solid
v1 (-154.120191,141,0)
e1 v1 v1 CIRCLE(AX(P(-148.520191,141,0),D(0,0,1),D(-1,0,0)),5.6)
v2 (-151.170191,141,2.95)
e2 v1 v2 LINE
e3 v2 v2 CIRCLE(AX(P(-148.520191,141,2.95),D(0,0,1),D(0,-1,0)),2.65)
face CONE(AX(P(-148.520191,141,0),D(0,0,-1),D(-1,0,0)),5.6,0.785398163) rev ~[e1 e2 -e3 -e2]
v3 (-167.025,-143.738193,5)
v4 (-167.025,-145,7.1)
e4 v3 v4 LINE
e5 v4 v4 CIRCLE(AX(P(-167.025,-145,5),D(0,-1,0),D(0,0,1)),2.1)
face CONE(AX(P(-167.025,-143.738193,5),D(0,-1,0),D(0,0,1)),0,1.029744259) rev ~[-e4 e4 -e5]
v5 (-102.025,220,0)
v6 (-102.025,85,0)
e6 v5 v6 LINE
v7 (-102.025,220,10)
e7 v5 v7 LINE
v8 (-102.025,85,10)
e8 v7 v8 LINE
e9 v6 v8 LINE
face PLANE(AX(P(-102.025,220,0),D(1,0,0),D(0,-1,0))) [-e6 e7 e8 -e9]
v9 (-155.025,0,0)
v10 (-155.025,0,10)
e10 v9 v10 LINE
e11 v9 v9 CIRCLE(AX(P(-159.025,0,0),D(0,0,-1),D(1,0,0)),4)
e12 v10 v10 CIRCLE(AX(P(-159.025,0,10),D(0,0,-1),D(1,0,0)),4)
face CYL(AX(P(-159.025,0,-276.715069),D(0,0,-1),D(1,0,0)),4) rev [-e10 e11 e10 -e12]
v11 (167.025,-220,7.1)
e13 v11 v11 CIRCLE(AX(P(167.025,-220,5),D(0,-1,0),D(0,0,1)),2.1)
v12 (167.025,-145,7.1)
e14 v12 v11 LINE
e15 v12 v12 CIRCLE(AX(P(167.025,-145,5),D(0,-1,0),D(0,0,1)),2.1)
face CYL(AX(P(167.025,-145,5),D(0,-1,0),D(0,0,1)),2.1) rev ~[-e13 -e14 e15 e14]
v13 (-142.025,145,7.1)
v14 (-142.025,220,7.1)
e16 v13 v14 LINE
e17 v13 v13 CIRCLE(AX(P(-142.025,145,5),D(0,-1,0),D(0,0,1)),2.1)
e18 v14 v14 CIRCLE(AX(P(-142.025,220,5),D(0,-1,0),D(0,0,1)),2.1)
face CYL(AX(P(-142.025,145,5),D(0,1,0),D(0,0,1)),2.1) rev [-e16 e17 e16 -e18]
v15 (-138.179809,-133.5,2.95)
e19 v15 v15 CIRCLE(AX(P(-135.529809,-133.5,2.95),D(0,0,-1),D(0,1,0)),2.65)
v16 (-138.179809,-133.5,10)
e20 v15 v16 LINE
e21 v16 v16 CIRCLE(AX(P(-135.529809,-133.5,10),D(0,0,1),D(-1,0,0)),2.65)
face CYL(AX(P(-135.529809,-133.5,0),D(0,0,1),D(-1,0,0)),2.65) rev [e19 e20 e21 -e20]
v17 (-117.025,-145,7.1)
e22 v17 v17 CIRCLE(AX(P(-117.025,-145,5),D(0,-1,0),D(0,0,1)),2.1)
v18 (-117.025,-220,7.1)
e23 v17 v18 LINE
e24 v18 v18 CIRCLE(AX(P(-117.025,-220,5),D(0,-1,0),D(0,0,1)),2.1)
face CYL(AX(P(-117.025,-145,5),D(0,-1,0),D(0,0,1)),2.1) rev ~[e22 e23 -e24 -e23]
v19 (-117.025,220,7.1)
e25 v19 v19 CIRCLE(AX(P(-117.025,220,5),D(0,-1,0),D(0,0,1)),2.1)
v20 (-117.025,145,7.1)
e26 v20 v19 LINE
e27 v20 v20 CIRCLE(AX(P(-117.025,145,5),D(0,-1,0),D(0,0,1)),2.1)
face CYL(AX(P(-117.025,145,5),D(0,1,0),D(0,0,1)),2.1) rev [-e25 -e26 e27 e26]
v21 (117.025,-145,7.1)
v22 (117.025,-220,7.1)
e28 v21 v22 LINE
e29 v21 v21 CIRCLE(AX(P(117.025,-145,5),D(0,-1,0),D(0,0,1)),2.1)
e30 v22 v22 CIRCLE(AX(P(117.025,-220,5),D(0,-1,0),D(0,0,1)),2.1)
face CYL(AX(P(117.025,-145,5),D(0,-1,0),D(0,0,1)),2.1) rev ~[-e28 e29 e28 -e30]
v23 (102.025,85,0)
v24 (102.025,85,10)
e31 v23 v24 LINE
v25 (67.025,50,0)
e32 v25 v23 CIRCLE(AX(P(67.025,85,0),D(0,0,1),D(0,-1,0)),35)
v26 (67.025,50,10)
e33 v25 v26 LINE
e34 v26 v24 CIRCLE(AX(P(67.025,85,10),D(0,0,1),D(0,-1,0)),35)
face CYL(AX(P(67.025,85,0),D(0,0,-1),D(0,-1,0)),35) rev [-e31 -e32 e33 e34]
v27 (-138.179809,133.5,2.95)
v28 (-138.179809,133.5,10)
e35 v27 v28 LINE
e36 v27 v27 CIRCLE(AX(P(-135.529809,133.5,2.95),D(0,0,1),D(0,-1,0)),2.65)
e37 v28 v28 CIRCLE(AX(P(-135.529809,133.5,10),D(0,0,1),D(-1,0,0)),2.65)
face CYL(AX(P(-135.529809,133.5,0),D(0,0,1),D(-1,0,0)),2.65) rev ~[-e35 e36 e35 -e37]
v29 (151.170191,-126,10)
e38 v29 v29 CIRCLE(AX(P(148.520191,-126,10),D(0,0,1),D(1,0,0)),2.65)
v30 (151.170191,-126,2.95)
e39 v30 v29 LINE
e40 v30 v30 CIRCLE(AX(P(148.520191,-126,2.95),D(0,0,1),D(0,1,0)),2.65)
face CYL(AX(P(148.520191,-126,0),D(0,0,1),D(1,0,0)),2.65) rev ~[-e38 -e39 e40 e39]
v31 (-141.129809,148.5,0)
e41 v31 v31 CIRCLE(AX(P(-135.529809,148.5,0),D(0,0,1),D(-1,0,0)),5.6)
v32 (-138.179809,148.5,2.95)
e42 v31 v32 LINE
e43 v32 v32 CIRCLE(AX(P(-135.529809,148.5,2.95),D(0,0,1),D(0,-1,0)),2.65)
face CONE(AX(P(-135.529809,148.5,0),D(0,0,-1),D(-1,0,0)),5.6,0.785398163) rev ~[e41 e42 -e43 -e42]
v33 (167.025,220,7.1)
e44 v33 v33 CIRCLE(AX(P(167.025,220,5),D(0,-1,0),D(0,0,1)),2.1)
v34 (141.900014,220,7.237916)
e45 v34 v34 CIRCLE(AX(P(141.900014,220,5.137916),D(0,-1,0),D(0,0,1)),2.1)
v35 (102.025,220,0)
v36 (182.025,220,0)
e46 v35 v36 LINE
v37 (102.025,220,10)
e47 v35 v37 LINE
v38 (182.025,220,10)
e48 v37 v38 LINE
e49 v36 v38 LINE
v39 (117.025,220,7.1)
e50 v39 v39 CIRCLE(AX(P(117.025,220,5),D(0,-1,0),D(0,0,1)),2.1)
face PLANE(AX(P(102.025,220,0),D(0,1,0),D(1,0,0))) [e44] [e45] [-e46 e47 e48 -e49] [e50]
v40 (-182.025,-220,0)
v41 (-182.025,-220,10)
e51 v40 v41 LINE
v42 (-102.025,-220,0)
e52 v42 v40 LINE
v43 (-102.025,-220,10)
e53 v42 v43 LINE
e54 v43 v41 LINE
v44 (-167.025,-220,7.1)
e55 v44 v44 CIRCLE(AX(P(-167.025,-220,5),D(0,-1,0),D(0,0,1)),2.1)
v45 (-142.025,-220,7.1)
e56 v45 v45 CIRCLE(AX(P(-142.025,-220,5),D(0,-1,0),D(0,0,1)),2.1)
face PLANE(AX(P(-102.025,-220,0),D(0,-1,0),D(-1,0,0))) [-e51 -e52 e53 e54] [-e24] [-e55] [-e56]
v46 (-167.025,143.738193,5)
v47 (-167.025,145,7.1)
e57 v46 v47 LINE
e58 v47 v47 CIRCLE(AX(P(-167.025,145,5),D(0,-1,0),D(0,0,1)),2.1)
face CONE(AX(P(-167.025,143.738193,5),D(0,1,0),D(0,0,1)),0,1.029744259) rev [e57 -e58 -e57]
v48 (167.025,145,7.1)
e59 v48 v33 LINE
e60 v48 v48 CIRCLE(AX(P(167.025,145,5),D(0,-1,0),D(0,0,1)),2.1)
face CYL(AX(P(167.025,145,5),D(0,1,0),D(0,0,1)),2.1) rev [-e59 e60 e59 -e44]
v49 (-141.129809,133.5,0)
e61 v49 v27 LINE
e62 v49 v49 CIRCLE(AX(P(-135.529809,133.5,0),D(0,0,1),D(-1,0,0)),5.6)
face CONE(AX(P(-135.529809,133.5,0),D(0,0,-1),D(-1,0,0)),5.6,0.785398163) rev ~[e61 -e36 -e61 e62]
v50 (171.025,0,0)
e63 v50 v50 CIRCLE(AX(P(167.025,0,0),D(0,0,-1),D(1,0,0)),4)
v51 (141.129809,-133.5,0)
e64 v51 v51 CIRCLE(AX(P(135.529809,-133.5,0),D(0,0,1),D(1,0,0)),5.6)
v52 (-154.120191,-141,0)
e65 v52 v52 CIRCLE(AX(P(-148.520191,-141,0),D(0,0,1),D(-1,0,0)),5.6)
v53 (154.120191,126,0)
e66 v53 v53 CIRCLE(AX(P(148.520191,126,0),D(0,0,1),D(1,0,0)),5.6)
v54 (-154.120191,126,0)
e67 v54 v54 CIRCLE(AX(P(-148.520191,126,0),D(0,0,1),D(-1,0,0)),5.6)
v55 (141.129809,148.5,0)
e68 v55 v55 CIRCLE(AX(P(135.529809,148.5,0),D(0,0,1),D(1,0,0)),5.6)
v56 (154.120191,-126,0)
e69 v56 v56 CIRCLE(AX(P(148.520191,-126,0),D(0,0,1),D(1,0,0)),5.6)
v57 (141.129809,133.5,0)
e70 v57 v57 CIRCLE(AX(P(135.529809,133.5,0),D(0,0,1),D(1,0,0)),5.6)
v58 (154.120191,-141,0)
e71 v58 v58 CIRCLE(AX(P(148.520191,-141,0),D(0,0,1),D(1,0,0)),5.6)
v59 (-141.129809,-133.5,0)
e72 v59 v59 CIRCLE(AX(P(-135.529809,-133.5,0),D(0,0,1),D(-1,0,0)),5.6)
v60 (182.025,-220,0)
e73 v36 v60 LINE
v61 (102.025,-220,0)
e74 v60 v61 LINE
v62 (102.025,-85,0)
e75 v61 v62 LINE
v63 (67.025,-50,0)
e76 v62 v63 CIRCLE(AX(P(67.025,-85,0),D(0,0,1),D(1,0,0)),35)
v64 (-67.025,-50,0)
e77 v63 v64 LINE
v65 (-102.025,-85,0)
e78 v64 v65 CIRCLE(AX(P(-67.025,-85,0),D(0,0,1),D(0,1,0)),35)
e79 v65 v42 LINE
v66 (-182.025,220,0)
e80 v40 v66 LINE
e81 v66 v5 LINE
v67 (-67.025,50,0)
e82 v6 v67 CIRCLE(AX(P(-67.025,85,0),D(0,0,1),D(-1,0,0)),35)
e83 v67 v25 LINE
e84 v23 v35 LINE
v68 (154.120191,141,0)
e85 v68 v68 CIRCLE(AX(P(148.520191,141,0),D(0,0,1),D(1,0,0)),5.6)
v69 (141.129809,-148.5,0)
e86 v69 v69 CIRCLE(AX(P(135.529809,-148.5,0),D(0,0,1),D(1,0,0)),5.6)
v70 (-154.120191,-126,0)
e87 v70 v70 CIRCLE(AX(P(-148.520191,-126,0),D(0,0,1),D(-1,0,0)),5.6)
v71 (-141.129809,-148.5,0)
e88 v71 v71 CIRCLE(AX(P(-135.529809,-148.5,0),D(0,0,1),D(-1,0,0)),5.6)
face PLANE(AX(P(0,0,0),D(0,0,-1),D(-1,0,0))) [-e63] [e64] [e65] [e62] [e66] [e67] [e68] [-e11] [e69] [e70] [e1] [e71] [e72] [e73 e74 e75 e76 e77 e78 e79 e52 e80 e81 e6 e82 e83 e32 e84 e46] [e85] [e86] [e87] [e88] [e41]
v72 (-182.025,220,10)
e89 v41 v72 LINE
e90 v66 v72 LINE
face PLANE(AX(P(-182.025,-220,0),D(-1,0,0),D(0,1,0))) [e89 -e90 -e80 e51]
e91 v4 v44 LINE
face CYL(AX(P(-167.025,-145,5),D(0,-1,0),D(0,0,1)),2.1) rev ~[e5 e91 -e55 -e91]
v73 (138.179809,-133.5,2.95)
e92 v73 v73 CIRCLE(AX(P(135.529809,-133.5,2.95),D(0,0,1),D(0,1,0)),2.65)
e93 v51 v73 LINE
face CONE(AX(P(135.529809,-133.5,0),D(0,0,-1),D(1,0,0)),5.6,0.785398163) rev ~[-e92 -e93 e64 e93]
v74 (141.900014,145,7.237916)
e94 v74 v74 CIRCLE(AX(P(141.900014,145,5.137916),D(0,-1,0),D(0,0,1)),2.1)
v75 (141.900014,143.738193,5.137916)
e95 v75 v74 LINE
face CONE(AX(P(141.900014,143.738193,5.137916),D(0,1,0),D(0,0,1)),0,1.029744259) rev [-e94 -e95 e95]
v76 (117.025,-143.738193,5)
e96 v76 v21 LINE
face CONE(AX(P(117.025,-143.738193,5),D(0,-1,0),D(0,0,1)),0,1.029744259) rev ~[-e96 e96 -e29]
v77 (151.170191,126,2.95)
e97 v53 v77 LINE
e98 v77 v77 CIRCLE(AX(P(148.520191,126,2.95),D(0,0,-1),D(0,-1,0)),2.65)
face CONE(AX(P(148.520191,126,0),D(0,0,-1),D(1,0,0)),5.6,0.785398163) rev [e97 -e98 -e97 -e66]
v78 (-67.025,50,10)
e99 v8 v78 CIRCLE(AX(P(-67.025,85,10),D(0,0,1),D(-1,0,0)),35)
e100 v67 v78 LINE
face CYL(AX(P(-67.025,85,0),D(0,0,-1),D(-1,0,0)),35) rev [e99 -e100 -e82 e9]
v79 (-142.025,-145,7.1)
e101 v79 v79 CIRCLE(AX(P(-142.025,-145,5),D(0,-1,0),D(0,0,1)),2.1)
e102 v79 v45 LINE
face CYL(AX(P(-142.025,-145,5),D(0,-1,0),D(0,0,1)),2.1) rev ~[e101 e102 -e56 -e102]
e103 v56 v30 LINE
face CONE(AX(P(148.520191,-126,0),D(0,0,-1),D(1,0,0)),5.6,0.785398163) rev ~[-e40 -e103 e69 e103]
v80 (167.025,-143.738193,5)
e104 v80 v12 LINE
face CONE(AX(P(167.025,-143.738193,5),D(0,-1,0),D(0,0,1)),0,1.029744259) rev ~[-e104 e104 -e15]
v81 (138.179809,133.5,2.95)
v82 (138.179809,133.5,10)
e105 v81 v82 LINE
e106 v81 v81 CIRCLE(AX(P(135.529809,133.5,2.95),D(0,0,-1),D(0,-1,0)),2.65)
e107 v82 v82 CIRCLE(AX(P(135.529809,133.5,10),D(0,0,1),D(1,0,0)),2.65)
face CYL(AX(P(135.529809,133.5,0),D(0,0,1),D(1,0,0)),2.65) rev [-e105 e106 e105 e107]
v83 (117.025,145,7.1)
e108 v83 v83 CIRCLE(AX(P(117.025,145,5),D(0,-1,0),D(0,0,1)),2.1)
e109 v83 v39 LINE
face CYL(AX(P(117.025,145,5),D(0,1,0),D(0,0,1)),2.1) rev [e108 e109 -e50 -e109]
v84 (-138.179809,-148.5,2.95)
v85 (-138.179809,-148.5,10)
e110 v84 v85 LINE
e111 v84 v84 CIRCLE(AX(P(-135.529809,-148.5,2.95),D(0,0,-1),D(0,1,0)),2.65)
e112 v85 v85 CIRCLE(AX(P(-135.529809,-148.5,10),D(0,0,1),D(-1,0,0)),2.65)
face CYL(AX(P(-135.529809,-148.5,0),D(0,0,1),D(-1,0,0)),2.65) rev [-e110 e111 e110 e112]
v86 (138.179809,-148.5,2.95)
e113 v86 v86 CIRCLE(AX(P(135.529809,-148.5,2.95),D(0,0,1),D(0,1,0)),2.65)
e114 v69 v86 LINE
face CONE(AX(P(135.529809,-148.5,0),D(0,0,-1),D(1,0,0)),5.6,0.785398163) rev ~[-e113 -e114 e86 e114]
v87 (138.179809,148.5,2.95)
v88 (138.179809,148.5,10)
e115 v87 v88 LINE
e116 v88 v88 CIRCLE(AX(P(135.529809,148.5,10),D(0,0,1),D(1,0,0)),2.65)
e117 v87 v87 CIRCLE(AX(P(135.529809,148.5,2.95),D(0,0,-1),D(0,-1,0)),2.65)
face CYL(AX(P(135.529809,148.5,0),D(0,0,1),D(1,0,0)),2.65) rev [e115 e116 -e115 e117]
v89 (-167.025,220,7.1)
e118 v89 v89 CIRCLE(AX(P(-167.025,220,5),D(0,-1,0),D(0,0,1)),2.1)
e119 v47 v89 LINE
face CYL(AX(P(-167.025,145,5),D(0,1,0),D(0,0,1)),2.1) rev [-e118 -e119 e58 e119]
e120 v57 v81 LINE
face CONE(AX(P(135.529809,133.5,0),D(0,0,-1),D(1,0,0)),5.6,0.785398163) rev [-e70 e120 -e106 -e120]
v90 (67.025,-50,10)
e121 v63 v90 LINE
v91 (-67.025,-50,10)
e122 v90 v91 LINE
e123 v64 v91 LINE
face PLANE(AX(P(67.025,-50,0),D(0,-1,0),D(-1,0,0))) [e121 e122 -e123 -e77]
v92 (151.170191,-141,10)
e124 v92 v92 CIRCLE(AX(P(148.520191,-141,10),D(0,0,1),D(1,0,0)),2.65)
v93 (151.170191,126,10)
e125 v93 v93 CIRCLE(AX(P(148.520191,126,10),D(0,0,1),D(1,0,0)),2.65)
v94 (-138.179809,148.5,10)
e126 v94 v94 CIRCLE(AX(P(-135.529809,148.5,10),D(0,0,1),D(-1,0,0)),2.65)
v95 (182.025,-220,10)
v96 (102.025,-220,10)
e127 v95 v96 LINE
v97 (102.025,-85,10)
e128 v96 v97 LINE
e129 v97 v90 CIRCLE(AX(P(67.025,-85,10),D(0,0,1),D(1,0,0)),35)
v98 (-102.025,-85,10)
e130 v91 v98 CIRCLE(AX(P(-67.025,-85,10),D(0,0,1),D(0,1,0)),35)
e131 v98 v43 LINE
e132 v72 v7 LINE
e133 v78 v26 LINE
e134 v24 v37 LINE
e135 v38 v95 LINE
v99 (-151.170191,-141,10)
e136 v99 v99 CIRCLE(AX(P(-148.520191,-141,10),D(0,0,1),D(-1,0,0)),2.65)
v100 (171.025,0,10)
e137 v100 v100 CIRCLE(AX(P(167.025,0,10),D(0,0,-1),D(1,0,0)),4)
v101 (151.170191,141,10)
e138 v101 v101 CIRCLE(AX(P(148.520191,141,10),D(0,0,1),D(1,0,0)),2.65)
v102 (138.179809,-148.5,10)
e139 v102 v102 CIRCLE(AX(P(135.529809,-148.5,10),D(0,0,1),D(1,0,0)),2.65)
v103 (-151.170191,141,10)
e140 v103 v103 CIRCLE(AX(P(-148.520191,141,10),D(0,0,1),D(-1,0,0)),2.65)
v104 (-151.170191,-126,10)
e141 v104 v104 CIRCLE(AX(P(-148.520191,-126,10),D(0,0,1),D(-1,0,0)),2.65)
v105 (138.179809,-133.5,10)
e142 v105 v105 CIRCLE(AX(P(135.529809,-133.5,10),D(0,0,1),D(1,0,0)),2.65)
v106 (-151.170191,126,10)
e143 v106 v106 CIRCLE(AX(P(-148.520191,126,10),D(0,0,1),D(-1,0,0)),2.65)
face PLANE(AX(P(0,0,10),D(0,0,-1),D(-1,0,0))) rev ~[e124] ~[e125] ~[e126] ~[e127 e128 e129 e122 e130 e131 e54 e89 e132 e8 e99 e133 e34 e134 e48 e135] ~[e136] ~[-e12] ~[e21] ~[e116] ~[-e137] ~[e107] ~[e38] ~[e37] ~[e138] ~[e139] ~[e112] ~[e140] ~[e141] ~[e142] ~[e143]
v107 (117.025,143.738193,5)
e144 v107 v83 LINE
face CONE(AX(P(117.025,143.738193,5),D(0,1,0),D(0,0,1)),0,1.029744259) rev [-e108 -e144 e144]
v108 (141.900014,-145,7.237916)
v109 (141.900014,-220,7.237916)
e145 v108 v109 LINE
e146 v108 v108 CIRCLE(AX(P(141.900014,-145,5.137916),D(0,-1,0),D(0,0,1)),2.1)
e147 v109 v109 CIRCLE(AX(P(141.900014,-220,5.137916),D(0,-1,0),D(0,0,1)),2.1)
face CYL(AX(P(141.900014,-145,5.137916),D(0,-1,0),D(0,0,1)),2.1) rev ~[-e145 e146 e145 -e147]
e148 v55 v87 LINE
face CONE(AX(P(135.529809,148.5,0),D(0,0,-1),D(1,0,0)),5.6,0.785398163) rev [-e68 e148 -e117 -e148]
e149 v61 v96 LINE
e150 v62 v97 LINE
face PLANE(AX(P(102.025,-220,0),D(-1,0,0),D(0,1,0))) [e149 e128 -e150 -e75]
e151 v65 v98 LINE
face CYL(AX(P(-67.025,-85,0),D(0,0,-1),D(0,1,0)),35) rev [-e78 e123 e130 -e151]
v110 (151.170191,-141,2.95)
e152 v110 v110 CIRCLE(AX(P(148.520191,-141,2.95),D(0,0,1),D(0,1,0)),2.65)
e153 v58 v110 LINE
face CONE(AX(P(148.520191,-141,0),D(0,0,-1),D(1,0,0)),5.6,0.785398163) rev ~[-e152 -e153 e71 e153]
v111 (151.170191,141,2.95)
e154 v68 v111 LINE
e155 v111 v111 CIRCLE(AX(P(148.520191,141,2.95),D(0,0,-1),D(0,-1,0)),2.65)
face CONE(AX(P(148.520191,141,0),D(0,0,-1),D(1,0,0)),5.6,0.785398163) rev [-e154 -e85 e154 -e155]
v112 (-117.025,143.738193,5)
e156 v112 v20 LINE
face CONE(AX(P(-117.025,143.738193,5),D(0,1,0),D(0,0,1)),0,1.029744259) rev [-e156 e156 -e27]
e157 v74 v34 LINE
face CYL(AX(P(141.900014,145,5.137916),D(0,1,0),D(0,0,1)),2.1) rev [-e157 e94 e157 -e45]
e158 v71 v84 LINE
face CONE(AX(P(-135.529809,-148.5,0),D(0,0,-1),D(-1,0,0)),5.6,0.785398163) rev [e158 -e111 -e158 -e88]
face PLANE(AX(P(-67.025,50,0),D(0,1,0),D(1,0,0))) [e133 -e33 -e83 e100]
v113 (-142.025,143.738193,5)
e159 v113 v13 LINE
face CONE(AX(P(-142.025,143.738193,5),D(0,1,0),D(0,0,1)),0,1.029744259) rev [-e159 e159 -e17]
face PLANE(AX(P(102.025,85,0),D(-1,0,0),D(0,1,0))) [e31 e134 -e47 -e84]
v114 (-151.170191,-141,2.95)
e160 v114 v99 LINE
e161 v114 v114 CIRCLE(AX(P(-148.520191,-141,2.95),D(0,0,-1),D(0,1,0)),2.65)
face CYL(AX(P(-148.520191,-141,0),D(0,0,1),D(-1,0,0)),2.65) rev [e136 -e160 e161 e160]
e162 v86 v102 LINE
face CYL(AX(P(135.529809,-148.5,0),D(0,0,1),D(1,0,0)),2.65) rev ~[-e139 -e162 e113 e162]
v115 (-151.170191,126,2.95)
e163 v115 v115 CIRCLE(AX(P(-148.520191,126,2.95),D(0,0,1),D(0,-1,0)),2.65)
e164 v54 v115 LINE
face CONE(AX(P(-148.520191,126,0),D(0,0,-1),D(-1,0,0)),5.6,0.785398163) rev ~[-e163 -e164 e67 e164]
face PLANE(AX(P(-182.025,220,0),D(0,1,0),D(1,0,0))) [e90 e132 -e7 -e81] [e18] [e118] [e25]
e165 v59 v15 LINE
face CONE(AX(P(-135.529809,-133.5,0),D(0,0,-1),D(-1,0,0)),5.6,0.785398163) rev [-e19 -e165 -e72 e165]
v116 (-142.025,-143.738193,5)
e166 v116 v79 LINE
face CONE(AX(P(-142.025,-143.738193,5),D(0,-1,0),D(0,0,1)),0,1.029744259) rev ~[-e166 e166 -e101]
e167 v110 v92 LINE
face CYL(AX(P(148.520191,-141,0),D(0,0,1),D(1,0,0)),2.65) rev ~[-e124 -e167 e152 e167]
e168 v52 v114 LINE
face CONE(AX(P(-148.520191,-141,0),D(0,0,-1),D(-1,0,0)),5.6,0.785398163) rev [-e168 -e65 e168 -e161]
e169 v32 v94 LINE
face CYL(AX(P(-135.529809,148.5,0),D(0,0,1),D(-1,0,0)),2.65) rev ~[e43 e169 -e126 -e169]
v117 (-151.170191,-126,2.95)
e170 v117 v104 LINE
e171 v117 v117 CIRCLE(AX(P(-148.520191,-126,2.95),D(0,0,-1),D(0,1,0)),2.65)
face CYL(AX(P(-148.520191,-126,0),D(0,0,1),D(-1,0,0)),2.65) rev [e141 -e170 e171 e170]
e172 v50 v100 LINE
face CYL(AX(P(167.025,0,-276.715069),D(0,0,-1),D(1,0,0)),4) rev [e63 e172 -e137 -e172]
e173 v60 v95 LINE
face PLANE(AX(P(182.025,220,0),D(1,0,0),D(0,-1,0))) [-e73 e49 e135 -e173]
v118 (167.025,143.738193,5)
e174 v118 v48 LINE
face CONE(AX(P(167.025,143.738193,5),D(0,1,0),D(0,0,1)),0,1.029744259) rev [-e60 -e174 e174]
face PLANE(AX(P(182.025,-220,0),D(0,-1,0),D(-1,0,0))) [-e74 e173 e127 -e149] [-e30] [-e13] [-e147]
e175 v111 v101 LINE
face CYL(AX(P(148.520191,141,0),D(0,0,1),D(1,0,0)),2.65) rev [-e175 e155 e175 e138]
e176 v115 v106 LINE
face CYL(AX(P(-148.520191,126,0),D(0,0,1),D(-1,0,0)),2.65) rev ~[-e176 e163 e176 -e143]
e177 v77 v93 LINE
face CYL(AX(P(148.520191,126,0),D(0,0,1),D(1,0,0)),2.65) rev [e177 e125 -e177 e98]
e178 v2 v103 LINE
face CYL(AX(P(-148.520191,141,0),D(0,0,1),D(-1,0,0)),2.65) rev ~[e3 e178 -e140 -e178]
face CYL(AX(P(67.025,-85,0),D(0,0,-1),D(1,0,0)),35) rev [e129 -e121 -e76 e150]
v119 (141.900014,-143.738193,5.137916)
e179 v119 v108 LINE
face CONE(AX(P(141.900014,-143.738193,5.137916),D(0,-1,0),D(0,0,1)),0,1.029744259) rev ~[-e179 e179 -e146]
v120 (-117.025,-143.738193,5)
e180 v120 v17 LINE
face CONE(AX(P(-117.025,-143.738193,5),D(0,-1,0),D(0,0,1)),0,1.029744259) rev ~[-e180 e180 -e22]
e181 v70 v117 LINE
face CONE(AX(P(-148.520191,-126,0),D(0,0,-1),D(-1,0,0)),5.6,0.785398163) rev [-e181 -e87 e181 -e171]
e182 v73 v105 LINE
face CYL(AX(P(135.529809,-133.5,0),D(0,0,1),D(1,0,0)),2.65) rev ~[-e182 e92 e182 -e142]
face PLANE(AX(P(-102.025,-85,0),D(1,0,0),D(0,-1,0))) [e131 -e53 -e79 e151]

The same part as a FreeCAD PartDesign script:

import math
import FreeCAD as App
import Part
import Sketcher
from FreeCAD import Vector
Q = App.Units.Quantity


def add_polygon(sketch, points):
    """Adds a closed chain of lines whose ends are joined by coincident constraints."""
    first, n = sketch.GeometryCount, len(points)
    for a, b in zip(points, points[1:] + points[:1]):
        sketch.addGeometry(Part.LineSegment(App.Vector(*a, 0), App.Vector(*b, 0)), False)
    for i in range(n):
        sketch.addConstraint(Sketcher.Constraint("Coincident", first + i, 2, first + (i + 1) % n, 1))

doc = App.newDocument("Part")
body = doc.addObject("PartDesign::Body", "Body")

# Sketch on XY plane
sketch1 = body.newObject("Sketcher::SketchObject", "Sketch")
sketch1.AttachmentSupport = (doc.getObject("XY_Plane"), [""])
sketch1.MapMode = "FlatFace"
sketch1.addGeometry(Part.LineSegment(Vector(67, 50, 0), Vector(-67, 50, 0)), False)
sketch1.addGeometry(Part.ArcOfCircle(Part.Circle(Vector(-67, 85, 0), Vector(0, 0, 1), 35), math.radians(180), math.radians(270)), False)
sketch1.addGeometry(Part.LineSegment(Vector(-102, 85, 0), Vector(-102, 220, 0)), False)
sketch1.addGeometry(Part.LineSegment(Vector(-102, 220, 0), Vector(-182, 220, 0)), False)
sketch1.addGeometry(Part.LineSegment(Vector(-182, 220, 0), Vector(-182, -220, 0)), False)
sketch1.addGeometry(Part.LineSegment(Vector(-182, -220, 0), Vector(-102, -220, 0)), False)
sketch1.addGeometry(Part.LineSegment(Vector(-102, -220, 0), Vector(-102, -85, 0)), False)
sketch1.addGeometry(Part.ArcOfCircle(Part.Circle(Vector(-67, -85, 0), Vector(0, 0, 1), 35), math.radians(90), math.radians(180)), False)
sketch1.addGeometry(Part.LineSegment(Vector(-67, -50, 0), Vector(67, -50, 0)), False)
sketch1.addGeometry(Part.ArcOfCircle(Part.Circle(Vector(67, -85, 0), Vector(0, 0, 1), 35), math.radians(0), math.radians(90)), False)
sketch1.addGeometry(Part.LineSegment(Vector(102, -85, 0), Vector(102, -220, 0)), False)
sketch1.addGeometry(Part.LineSegment(Vector(102, -220, 0), Vector(182, -220, 0)), False)
sketch1.addGeometry(Part.LineSegment(Vector(182, -220, 0), Vector(182, 220, 0)), False)
sketch1.addGeometry(Part.LineSegment(Vector(182, 220, 0), Vector(102, 220, 0)), False)
sketch1.addGeometry(Part.LineSegment(Vector(102, 220, 0), Vector(102, 85, 0)), False)
sketch1.addGeometry(Part.ArcOfCircle(Part.Circle(Vector(67, 85, 0), Vector(0, 0, 1), 35), math.radians(-90), math.radians(0)), False)
sketch1.addConstraint(Sketcher.Constraint("Tangent", 0, 2, 1, 2))
sketch1.addConstraint(Sketcher.Constraint("Tangent", 1, 1, 2, 1))
sketch1.addConstraint(Sketcher.Constraint("Coincident", 2, 2, 3, 1))
sketch1.addConstraint(Sketcher.Constraint("Coincident", 3, 2, 4, 1))
sketch1.addConstraint(Sketcher.Constraint("Coincident", 4, 2, 5, 1))
sketch1.addConstraint(Sketcher.Constraint("Coincident", 5, 2, 6, 1))
sketch1.addConstraint(Sketcher.Constraint("Tangent", 6, 2, 7, 2))
sketch1.addConstraint(Sketcher.Constraint("Tangent", 7, 1, 8, 1))
sketch1.addConstraint(Sketcher.Constraint("Tangent", 8, 2, 9, 2))
sketch1.addConstraint(Sketcher.Constraint("Tangent", 9, 1, 10, 1))
sketch1.addConstraint(Sketcher.Constraint("Coincident", 10, 2, 11, 1))
sketch1.addConstraint(Sketcher.Constraint("Coincident", 11, 2, 12, 1))
sketch1.addConstraint(Sketcher.Constraint("Coincident", 12, 2, 13, 1))
sketch1.addConstraint(Sketcher.Constraint("Coincident", 13, 2, 14, 1))
sketch1.addConstraint(Sketcher.Constraint("Tangent", 14, 2, 15, 2))
sketch1.addConstraint(Sketcher.Constraint("Tangent", 15, 1, 0, 1))
sketch1.addConstraint(Sketcher.Constraint("Horizontal", 0))
sketch1.addConstraint(Sketcher.Constraint("Vertical", 2))
sketch1.addConstraint(Sketcher.Constraint("Horizontal", 3))
sketch1.addConstraint(Sketcher.Constraint("Vertical", 4))
sketch1.addConstraint(Sketcher.Constraint("Horizontal", 5))
sketch1.addConstraint(Sketcher.Constraint("Vertical", 6))
sketch1.addConstraint(Sketcher.Constraint("Horizontal", 8))
sketch1.addConstraint(Sketcher.Constraint("Vertical", 10))
sketch1.addConstraint(Sketcher.Constraint("Horizontal", 11))
sketch1.addConstraint(Sketcher.Constraint("Vertical", 12))
sketch1.addConstraint(Sketcher.Constraint("Horizontal", 13))
sketch1.addConstraint(Sketcher.Constraint("Vertical", 14))
sketch1.addConstraint(Sketcher.Constraint("Equal", 1, 7))
sketch1.addConstraint(Sketcher.Constraint("Equal", 7, 9))
sketch1.addConstraint(Sketcher.Constraint("Equal", 9, 15))
sketch1.addConstraint(Sketcher.Constraint("Symmetric", 1, 3, 9, 3, -1, 1))
sketch1.addConstraint(Sketcher.Constraint("Symmetric", 3, 2, 11, 2, -1, 1))
sketch1.addConstraint(Sketcher.Constraint("Symmetric", 5, 2, 13, 2, -1, 1))
sketch1.addConstraint(Sketcher.Constraint("Symmetric", 5, 2, 10, 2, -2))
sketch1.addConstraint(Sketcher.Constraint("Radius", 1, 35.0))
sketch1.addConstraint(Sketcher.Constraint("DistanceX", 3, 2, 3, 1, 80.0))
sketch1.addConstraint(Sketcher.Constraint("DistanceY", 2, 1, 2, 2, 135.0))
sketch1.addConstraint(Sketcher.Constraint("DistanceY", 4, 2, 4, 1, 440.0))
sketch1.addConstraint(Sketcher.Constraint("DistanceX", 0, 2, 0, 1, 134.05))
pad1 = body.newObject("PartDesign::Pad", "Pad")
pad1.Profile = sketch1
pad1.Length = 10

# Sketch on YZ plane
sketch2 = body.newObject("Sketcher::SketchObject", "Sketch001")
sketch2.AttachmentSupport = (doc.getObject("YZ_Plane"), [""])
sketch2.MapMode = "FlatFace"
sketch2.AttachmentOffset = App.Placement(Vector(0, 0, -167.025), App.Rotation())
add_polygon(sketch2, [(143.7, 5), (220, 5), (220, 7.1), (145, 7.1)])  # lines 0-3
sketch2.addGeometry(Part.LineSegment(Vector(220, 5, 0), Vector(143.7, 5, 0)), True)  # axis
sketch2.addConstraint(Sketcher.Constraint("Horizontal", 0))
sketch2.addConstraint(Sketcher.Constraint("Vertical", 1))
sketch2.addConstraint(Sketcher.Constraint("Horizontal", 2))
sketch2.addConstraint(Sketcher.Constraint("Horizontal", 4))
sketch2.addConstraint(Sketcher.Constraint("Coincident", 4, 1, 0, 2))
sketch2.addConstraint(Sketcher.Constraint("Equal", 0, 4))
sketch2.addConstraint(Sketcher.Constraint("DistanceX", 2, 2, 2, 1, 75.0))
sketch2.addConstraint(Sketcher.Constraint("Angle", 3, Q("-121 deg")))
sketch2.addConstraint(Sketcher.Constraint("DistanceY", 1, 1, 1, 2, 2.1))
sketch2.addConstraint(Sketcher.Constraint("DistanceX", -1, 1, 0, 2, 220.0))
sketch2.addConstraint(Sketcher.Constraint("DistanceY", -1, 1, 0, 2, 5.0))
groove = body.newObject("PartDesign::Groove", "Groove")
groove.Profile = sketch2
groove.ReferenceAxis = (sketch2, ["Axis0"])
groove.Angle = 360
doc.recompute()

linearpattern = body.newObject("PartDesign::LinearPattern", "LinearPattern")
linearpattern.Originals = [groove]
linearpattern.Direction = (doc.getObject("X_Axis"), [""])
linearpattern.Mode = "offset"
linearpattern.Offset = 50
linearpattern.Occurrences = 2
body.Tip = linearpattern
doc.recompute()

datumline = body.newObject("PartDesign::Line", "DatumLine")
datumline.Placement = App.Placement(Vector(0, 0, 0), App.Rotation(Vector(0, 0, 1), Vector(-0.910543736, 0, -0.413412754)))
linearpattern2 = body.newObject("PartDesign::LinearPattern", "LinearPattern001")
linearpattern2.Originals = [groove]
linearpattern2.Direction = (datumline, [""])
linearpattern2.Mode = "offset"
linearpattern2.Offset = 114.274917
linearpattern2.Occurrences = 2
body.Tip = linearpattern2
doc.recompute()

linearpattern3 = body.newObject("PartDesign::LinearPattern", "LinearPattern002")
linearpattern3.Originals = [groove]
linearpattern3.Direction = (doc.getObject("X_Axis"), [""])
linearpattern3.Mode = "offset"
linearpattern3.Offset = 25
linearpattern3.Occurrences = 2
body.Tip = linearpattern3

# Sketch on YZ plane
sketch3 = body.newObject("Sketcher::SketchObject", "Sketch002")
sketch3.AttachmentSupport = (doc.getObject("YZ_Plane"), [""])
sketch3.MapMode = "FlatFace"
sketch3.AttachmentOffset = App.Placement(Vector(0, 0, 117.025), App.Rotation())
add_polygon(sketch3, [(143.7, 5), (220, 5), (220, 7.1), (145, 7.1)])  # lines 0-3
sketch3.addGeometry(Part.LineSegment(Vector(220, 5, 0), Vector(143.7, 5, 0)), True)  # axis
sketch3.addConstraint(Sketcher.Constraint("Horizontal", 0))
sketch3.addConstraint(Sketcher.Constraint("Vertical", 1))
sketch3.addConstraint(Sketcher.Constraint("Horizontal", 2))
sketch3.addConstraint(Sketcher.Constraint("Horizontal", 4))
sketch3.addConstraint(Sketcher.Constraint("Coincident", 4, 1, 0, 2))
sketch3.addConstraint(Sketcher.Constraint("Equal", 0, 4))
sketch3.addConstraint(Sketcher.Constraint("DistanceX", 2, 2, 2, 1, 75.0))
sketch3.addConstraint(Sketcher.Constraint("Angle", 3, Q("-121 deg")))
sketch3.addConstraint(Sketcher.Constraint("DistanceY", 1, 1, 1, 2, 2.1))
sketch3.addConstraint(Sketcher.Constraint("DistanceX", -1, 1, 0, 2, 220.0))
sketch3.addConstraint(Sketcher.Constraint("DistanceY", -1, 1, 0, 2, 5.0))
groove2 = body.newObject("PartDesign::Groove", "Groove001")
groove2.Profile = sketch3
groove2.ReferenceAxis = (sketch3, ["Axis0"])
groove2.Angle = 360
doc.recompute()

linearpattern4 = body.newObject("PartDesign::LinearPattern", "LinearPattern003")
linearpattern4.Originals = [groove2]
linearpattern4.Direction = (doc.getObject("X_Axis"), [""])
linearpattern4.Mode = "offset"
linearpattern4.Offset = 50
linearpattern4.Occurrences = 2
body.Tip = linearpattern4
doc.recompute()

datumline2 = body.newObject("PartDesign::Line", "DatumLine001")
datumline2.Placement = App.Placement(Vector(0, 0, 0), App.Rotation(Vector(0, 0, 1), Vector(0.99998463, 0, 0.005544287)))
linearpattern5 = body.newObject("PartDesign::LinearPattern", "LinearPattern004")
linearpattern5.Originals = [groove2]
linearpattern5.Direction = (datumline2, [""])
linearpattern5.Mode = "offset"
linearpattern5.Offset = 24.875396
linearpattern5.Occurrences = 2
body.Tip = linearpattern5
doc.recompute()

mirrored = body.newObject("PartDesign::Mirrored", "Mirrored")
mirrored.Originals = [groove, groove2]
mirrored.MirrorPlane = (doc.getObject("XZ_Plane"), [""])
body.Tip = mirrored

# Sketch on YZ plane
sketch4 = body.newObject("Sketcher::SketchObject", "Sketch003")
sketch4.AttachmentSupport = (doc.getObject("YZ_Plane"), [""])
sketch4.MapMode = "FlatFace"
sketch4.AttachmentOffset = App.Placement(Vector(0, 0, -117.025), App.Rotation())
add_polygon(sketch4, [(-220, 5), (-143.7, 5), (-145, 7.1), (-220, 7.1)])  # lines 0-3
sketch4.addGeometry(Part.LineSegment(Vector(-143.7, 5, 0), Vector(-220, 5, 0)), True)  # axis
sketch4.addConstraint(Sketcher.Constraint("Horizontal", 0))
sketch4.addConstraint(Sketcher.Constraint("Horizontal", 2))
sketch4.addConstraint(Sketcher.Constraint("Vertical", 3))
sketch4.addConstraint(Sketcher.Constraint("Horizontal", 4))
sketch4.addConstraint(Sketcher.Constraint("Coincident", 4, 1, 0, 2))
sketch4.addConstraint(Sketcher.Constraint("Vertical", 2, 2, 4, 2))
sketch4.addConstraint(Sketcher.Constraint("DistanceX", 2, 2, 2, 1, 75.0))
sketch4.addConstraint(Sketcher.Constraint("Angle", 1, Q("121 deg")))
sketch4.addConstraint(Sketcher.Constraint("DistanceY", 3, 2, 3, 1, 2.1))
sketch4.addConstraint(Sketcher.Constraint("DistanceY", -1, 1, 0, 2, 5.0))
sketch4.addConstraint(Sketcher.Constraint("DistanceX", 1, 2, -1, 1, 145.0))
groove3 = body.newObject("PartDesign::Groove", "Groove002")
groove3.Profile = sketch4
groove3.ReferenceAxis = (sketch4, ["Axis0"])
groove3.Angle = 360

# Sketch on YZ plane
sketch5 = body.newObject("Sketcher::SketchObject", "Sketch004")
sketch5.AttachmentSupport = (doc.getObject("YZ_Plane"), [""])
sketch5.MapMode = "FlatFace"
sketch5.AttachmentOffset = App.Placement(Vector(0, 0, -271.07731), App.Rotation())
add_polygon(sketch5, [(-220, -42.2), (-143.7, -42.2), (-145, -40.1), (-220, -40.1)])  # lines 0-3
sketch5.addGeometry(Part.LineSegment(Vector(-143.7, -42.2, 0), Vector(-220, -42.2, 0)), True)  # axis
sketch5.addConstraint(Sketcher.Constraint("Horizontal", 0))
sketch5.addConstraint(Sketcher.Constraint("Horizontal", 2))
sketch5.addConstraint(Sketcher.Constraint("Vertical", 3))
sketch5.addConstraint(Sketcher.Constraint("Horizontal", 4))
sketch5.addConstraint(Sketcher.Constraint("Coincident", 4, 1, 0, 2))
sketch5.addConstraint(Sketcher.Constraint("Vertical", 2, 2, 4, 2))
sketch5.addConstraint(Sketcher.Constraint("DistanceX", 2, 2, 2, 1, 75.0))
sketch5.addConstraint(Sketcher.Constraint("Angle", 1, Q("121 deg")))
sketch5.addConstraint(Sketcher.Constraint("DistanceY", 3, 2, 3, 1, 2.1))
sketch5.addConstraint(Sketcher.Constraint("DistanceX", 1, 2, -1, 1, 145.0))
sketch5.addConstraint(Sketcher.Constraint("DistanceY", 0, 2, -1, 1, 42.242708))
groove4 = body.newObject("PartDesign::Groove", "Groove003")
groove4.Profile = sketch5
groove4.ReferenceAxis = (sketch5, ["Axis0"])
groove4.Angle = 360

# Sketch on YZ plane
sketch6 = body.newObject("Sketcher::SketchObject", "Sketch005")
sketch6.AttachmentSupport = (doc.getObject("YZ_Plane"), [""])
sketch6.MapMode = "FlatFace"
sketch6.AttachmentOffset = App.Placement(Vector(0, 0, -142.025), App.Rotation())
add_polygon(sketch6, [(-220, 5), (-143.7, 5), (-145, 7.1), (-220, 7.1)])  # lines 0-3
sketch6.addGeometry(Part.LineSegment(Vector(-143.7, 5, 0), Vector(-220, 5, 0)), True)  # axis
sketch6.addConstraint(Sketcher.Constraint("Horizontal", 0))
sketch6.addConstraint(Sketcher.Constraint("Horizontal", 2))
sketch6.addConstraint(Sketcher.Constraint("Vertical", 3))
sketch6.addConstraint(Sketcher.Constraint("Horizontal", 4))
sketch6.addConstraint(Sketcher.Constraint("Coincident", 4, 1, 0, 2))
sketch6.addConstraint(Sketcher.Constraint("Vertical", 2, 2, 4, 2))
sketch6.addConstraint(Sketcher.Constraint("DistanceX", 2, 2, 2, 1, 75.0))
sketch6.addConstraint(Sketcher.Constraint("Angle", 1, Q("121 deg")))
sketch6.addConstraint(Sketcher.Constraint("DistanceY", 3, 2, 3, 1, 2.1))
sketch6.addConstraint(Sketcher.Constraint("DistanceY", -1, 1, 0, 2, 5.0))
sketch6.addConstraint(Sketcher.Constraint("DistanceX", 1, 2, -1, 1, 145.0))
groove5 = body.newObject("PartDesign::Groove", "Groove004")
groove5.Profile = sketch6
groove5.ReferenceAxis = (sketch6, ["Axis0"])
groove5.Angle = 360

# Sketch on YZ plane
sketch7 = body.newObject("Sketcher::SketchObject", "Sketch006")
sketch7.AttachmentSupport = (doc.getObject("YZ_Plane"), [""])
sketch7.MapMode = "FlatFace"
sketch7.AttachmentOffset = App.Placement(Vector(0, 0, 167.025), App.Rotation())
add_polygon(sketch7, [(-220, 5), (-143.7, 5), (-145, 7.1), (-220, 7.1)])  # lines 0-3
sketch7.addGeometry(Part.LineSegment(Vector(-143.7, 5, 0), Vector(-220, 5, 0)), True)  # axis
sketch7.addConstraint(Sketcher.Constraint("Horizontal", 0))
sketch7.addConstraint(Sketcher.Constraint("Horizontal", 2))
sketch7.addConstraint(Sketcher.Constraint("Vertical", 3))
sketch7.addConstraint(Sketcher.Constraint("Horizontal", 4))
sketch7.addConstraint(Sketcher.Constraint("Coincident", 4, 1, 0, 2))
sketch7.addConstraint(Sketcher.Constraint("Vertical", 2, 2, 4, 2))
sketch7.addConstraint(Sketcher.Constraint("DistanceX", 2, 2, 2, 1, 75.0))
sketch7.addConstraint(Sketcher.Constraint("Angle", 1, Q("121 deg")))
sketch7.addConstraint(Sketcher.Constraint("DistanceY", 3, 2, 3, 1, 2.1))
sketch7.addConstraint(Sketcher.Constraint("DistanceY", -1, 1, 0, 2, 5.0))
sketch7.addConstraint(Sketcher.Constraint("DistanceX", 1, 2, -1, 1, 145.0))
groove6 = body.newObject("PartDesign::Groove", "Groove005")
groove6.Profile = sketch7
groove6.ReferenceAxis = (sketch7, ["Axis0"])
groove6.Angle = 360

# Sketch on YZ plane
sketch8 = body.newObject("Sketcher::SketchObject", "Sketch007")
sketch8.AttachmentSupport = (doc.getObject("YZ_Plane"), [""])
sketch8.MapMode = "FlatFace"
sketch8.AttachmentOffset = App.Placement(Vector(0, 0, 141.900014), App.Rotation())
add_polygon(sketch8, [(-220, 5.1), (-143.7, 5.1), (-145, 7.2), (-220, 7.2)])  # lines 0-3
sketch8.addGeometry(Part.LineSegment(Vector(-143.7, 5.1, 0), Vector(-220, 5.1, 0)), True)  # axis
sketch8.addConstraint(Sketcher.Constraint("Horizontal", 0))
sketch8.addConstraint(Sketcher.Constraint("Horizontal", 2))
sketch8.addConstraint(Sketcher.Constraint("Vertical", 3))
sketch8.addConstraint(Sketcher.Constraint("Horizontal", 4))
sketch8.addConstraint(Sketcher.Constraint("Coincident", 4, 1, 0, 2))
sketch8.addConstraint(Sketcher.Constraint("Vertical", 2, 2, 4, 2))
sketch8.addConstraint(Sketcher.Constraint("DistanceX", 2, 2, 2, 1, 75.0))
sketch8.addConstraint(Sketcher.Constraint("Angle", 1, Q("121 deg")))
sketch8.addConstraint(Sketcher.Constraint("DistanceY", 3, 2, 3, 1, 2.1))
sketch8.addConstraint(Sketcher.Constraint("DistanceX", 1, 2, -1, 1, 145.0))
sketch8.addConstraint(Sketcher.Constraint("DistanceY", -1, 1, 0, 2, 5.137916))
groove7 = body.newObject("PartDesign::Groove", "Groove006")
groove7.Profile = sketch8
groove7.ReferenceAxis = (sketch8, ["Axis0"])
groove7.Angle = 360

# Sketch on XY plane
sketch9 = body.newObject("Sketcher::SketchObject", "Sketch008")
sketch9.AttachmentSupport = (doc.getObject("XY_Plane"), [""])
sketch9.MapMode = "FlatFace"
sketch9.addGeometry(Part.Circle(Vector(148.5, -141, 0), Vector(0, 0, 1), 2.6), False)
sketch9.addGeometry(Part.Circle(Vector(135.5, -133.5, 0), Vector(0, 0, 1), 2.6), False)
sketch9.addGeometry(Part.Circle(Vector(135.5, -148.5, 0), Vector(0, 0, 1), 2.6), False)
sketch9.addGeometry(Part.Circle(Vector(148.5, -126, 0), Vector(0, 0, 1), 2.6), False)
sketch9.addConstraint(Sketcher.Constraint("Equal", 0, 1))
sketch9.addConstraint(Sketcher.Constraint("Equal", 1, 2))
sketch9.addConstraint(Sketcher.Constraint("Equal", 2, 3))
sketch9.addConstraint(Sketcher.Constraint("Vertical", 1, 3, 2, 3))
sketch9.addConstraint(Sketcher.Constraint("Vertical", 0, 3, 3, 3))
sketch9.addConstraint(Sketcher.Constraint("Diameter", 0, 5.3))
sketch9.addConstraint(Sketcher.Constraint("DistanceY", 0, 3, -1, 1, 141.0))
sketch9.addConstraint(Sketcher.Constraint("DistanceY", 3, 3, -1, 1, 126.0))
sketch9.addConstraint(Sketcher.Constraint("DistanceY", 2, 3, 1, 3, 15.0))
sketch9.addConstraint(Sketcher.Constraint("DistanceY", 1, 3, -1, 1, 133.5))
sketch9.addConstraint(Sketcher.Constraint("DistanceX", -1, 1, 0, 3, 148.520191))
sketch9.addConstraint(Sketcher.Constraint("DistanceX", -1, 1, 1, 3, 135.529809))
doc.recompute()
hole = body.newObject("PartDesign::Hole", "Hole")
hole.Profile = sketch9
hole.ThreadType = "None"
hole.Diameter = 5.3
hole.DepthType = "ThroughAll"
hole.HoleCutType = "Countersink"
hole.HoleCutDiameter = 11.2
hole.HoleCutCountersinkAngle = 90
hole.Reversed = True
doc.recompute()

mirrored2 = body.newObject("PartDesign::Mirrored", "Mirrored001")
mirrored2.Originals = [hole]
mirrored2.MirrorPlane = (doc.getObject("XZ_Plane"), [""])
body.Tip = mirrored2
doc.recompute()

mirrored3 = body.newObject("PartDesign::Mirrored", "Mirrored002")
mirrored3.Originals = [hole]
mirrored3.MirrorPlane = (doc.getObject("YZ_Plane"), [""])
body.Tip = mirrored3

# Sketch on XY plane
sketch10 = body.newObject("Sketcher::SketchObject", "Sketch009")
sketch10.AttachmentSupport = (doc.getObject("XY_Plane"), [""])
sketch10.MapMode = "FlatFace"
sketch10.addGeometry(Part.Circle(Vector(-148.5, 141, 0), Vector(0, 0, 1), 2.6), False)
sketch10.addGeometry(Part.Circle(Vector(-135.5, 133.5, 0), Vector(0, 0, 1), 2.6), False)
sketch10.addGeometry(Part.Circle(Vector(-135.5, 148.5, 0), Vector(0, 0, 1), 2.6), False)
sketch10.addGeometry(Part.Circle(Vector(-148.5, 126, 0), Vector(0, 0, 1), 2.6), False)
sketch10.addConstraint(Sketcher.Constraint("Equal", 0, 1))
sketch10.addConstraint(Sketcher.Constraint("Equal", 1, 2))
sketch10.addConstraint(Sketcher.Constraint("Equal", 2, 3))
sketch10.addConstraint(Sketcher.Constraint("Vertical", 1, 3, 2, 3))
sketch10.addConstraint(Sketcher.Constraint("Vertical", 0, 3, 3, 3))
sketch10.addConstraint(Sketcher.Constraint("Diameter", 0, 5.3))
sketch10.addConstraint(Sketcher.Constraint("DistanceY", -1, 1, 0, 3, 141.0))
sketch10.addConstraint(Sketcher.Constraint("DistanceY", -1, 1, 3, 3, 126.0))
sketch10.addConstraint(Sketcher.Constraint("DistanceY", 1, 3, 2, 3, 15.0))
sketch10.addConstraint(Sketcher.Constraint("DistanceY", -1, 1, 1, 3, 133.5))
sketch10.addConstraint(Sketcher.Constraint("DistanceX", 0, 3, -1, 1, 148.520191))
sketch10.addConstraint(Sketcher.Constraint("DistanceX", 1, 3, -1, 1, 135.529809))
doc.recompute()
hole2 = body.newObject("PartDesign::Hole", "Hole001")
hole2.Profile = sketch10
hole2.ThreadType = "None"
hole2.Diameter = 5.3
hole2.DepthType = "ThroughAll"
hole2.HoleCutType = "Countersink"
hole2.HoleCutDiameter = 11.2
hole2.HoleCutCountersinkAngle = 90
hole2.Reversed = True

# Sketch on XY plane
sketch11 = body.newObject("Sketcher::SketchObject", "Sketch010")
sketch11.AttachmentSupport = (doc.getObject("XY_Plane"), [""])
sketch11.MapMode = "FlatFace"
sketch11.AttachmentOffset = App.Placement(Vector(0, 0, 10), App.Rotation())
sketch11.addGeometry(Part.Circle(Vector(167, 0, 0), Vector(0, 0, 1), 4), False)
sketch11.addGeometry(Part.Circle(Vector(-159, 0, 0), Vector(0, 0, 1), 4), False)
sketch11.addConstraint(Sketcher.Constraint("Equal", 0, 1))
sketch11.addConstraint(Sketcher.Constraint("PointOnObject", 0, 3, -1))
sketch11.addConstraint(Sketcher.Constraint("PointOnObject", 1, 3, -1))
sketch11.addConstraint(Sketcher.Constraint("Diameter", 0, 8.0))
sketch11.addConstraint(Sketcher.Constraint("DistanceX", 1, 3, 0, 3, 326.05))
sketch11.addConstraint(Sketcher.Constraint("DistanceX", -1, 1, 0, 3, 167.025))
pocket1 = body.newObject("PartDesign::Pocket", "Pocket")
pocket1.Profile = sketch11
pocket1.Type = "ThroughAll"
pocket1.Midplane = True

doc.recompute()
